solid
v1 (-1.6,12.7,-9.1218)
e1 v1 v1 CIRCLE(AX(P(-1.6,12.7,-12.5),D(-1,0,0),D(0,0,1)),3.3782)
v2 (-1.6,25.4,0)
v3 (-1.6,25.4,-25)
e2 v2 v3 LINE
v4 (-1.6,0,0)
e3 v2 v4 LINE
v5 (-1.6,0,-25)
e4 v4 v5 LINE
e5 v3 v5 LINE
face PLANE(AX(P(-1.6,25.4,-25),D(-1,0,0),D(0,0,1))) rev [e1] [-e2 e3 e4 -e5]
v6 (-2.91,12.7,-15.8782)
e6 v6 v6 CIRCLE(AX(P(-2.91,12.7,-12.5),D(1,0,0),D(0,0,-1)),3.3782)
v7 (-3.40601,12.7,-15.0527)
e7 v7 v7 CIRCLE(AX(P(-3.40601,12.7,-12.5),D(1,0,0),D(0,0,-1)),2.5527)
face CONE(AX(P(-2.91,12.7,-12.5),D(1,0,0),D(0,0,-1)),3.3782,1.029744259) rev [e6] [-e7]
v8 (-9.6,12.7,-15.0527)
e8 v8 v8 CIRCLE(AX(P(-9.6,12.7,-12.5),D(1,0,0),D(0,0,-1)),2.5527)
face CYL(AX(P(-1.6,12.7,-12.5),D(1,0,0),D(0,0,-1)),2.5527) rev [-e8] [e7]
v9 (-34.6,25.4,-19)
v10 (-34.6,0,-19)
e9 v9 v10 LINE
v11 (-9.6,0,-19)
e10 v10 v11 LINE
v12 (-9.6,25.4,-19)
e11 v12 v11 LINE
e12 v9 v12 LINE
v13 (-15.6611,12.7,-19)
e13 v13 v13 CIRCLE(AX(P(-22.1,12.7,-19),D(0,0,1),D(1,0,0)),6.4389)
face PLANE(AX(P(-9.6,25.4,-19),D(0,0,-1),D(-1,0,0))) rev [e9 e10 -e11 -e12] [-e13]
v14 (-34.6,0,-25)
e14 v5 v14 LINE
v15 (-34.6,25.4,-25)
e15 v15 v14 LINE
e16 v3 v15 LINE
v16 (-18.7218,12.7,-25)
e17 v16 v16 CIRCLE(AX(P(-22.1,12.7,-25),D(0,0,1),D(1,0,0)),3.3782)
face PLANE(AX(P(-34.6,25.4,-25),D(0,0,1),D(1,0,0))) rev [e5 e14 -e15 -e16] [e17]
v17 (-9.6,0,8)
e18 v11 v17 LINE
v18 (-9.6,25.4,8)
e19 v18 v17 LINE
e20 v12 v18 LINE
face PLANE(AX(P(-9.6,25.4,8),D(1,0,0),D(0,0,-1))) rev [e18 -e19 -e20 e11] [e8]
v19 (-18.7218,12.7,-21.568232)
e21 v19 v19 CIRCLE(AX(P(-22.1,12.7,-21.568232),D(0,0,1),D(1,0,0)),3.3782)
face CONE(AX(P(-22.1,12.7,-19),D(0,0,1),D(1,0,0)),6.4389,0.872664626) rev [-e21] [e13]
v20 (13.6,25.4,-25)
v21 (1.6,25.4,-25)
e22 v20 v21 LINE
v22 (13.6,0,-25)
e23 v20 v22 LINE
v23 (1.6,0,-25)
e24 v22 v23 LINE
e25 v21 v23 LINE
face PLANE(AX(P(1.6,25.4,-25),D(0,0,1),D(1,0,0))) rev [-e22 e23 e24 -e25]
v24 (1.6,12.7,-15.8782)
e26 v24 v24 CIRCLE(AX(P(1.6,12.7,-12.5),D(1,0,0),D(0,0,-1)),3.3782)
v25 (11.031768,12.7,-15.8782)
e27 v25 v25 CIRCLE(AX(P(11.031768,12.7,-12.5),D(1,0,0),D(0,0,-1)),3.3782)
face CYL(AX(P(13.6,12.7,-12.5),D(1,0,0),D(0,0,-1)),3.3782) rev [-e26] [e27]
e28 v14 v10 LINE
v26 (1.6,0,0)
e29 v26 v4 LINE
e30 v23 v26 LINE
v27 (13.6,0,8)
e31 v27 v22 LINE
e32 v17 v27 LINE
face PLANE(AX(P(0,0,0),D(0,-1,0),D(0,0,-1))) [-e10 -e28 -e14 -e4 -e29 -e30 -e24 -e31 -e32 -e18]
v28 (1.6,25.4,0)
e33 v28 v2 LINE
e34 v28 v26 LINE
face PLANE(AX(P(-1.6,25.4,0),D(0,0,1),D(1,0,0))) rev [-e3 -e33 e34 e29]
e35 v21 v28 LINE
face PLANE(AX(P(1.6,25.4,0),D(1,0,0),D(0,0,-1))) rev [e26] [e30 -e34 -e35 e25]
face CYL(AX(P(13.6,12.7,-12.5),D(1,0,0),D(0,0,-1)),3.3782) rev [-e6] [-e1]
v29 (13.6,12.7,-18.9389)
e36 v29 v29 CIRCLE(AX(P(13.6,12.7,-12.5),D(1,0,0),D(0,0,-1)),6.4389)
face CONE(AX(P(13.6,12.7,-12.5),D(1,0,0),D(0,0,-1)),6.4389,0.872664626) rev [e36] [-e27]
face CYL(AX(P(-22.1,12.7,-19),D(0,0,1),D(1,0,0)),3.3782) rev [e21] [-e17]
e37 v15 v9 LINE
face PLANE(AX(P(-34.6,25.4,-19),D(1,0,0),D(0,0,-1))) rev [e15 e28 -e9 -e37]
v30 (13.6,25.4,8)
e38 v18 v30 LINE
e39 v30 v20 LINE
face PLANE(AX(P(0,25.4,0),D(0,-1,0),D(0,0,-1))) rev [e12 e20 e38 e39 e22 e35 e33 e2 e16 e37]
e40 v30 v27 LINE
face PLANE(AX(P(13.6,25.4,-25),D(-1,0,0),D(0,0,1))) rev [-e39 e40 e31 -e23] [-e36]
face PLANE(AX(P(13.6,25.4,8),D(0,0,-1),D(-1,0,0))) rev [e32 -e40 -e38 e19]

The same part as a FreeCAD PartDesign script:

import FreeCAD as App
import Part
import Sketcher
Q = App.Units.Quantity


def add_polygon(sketch, points):
    """Adds a closed chain of lines whose ends are joined by coincident constraints."""
    first, n = sketch.GeometryCount, len(points)
    for a, b in zip(points, points[1:] + points[:1]):
        sketch.addGeometry(Part.LineSegment(App.Vector(*a, 0), App.Vector(*b, 0)), False)
    for i in range(n):
        sketch.addConstraint(Sketcher.Constraint("Coincident", first + i, 2, first + (i + 1) % n, 1))

doc = App.newDocument("Part")
params = doc.addObject("Spreadsheet::Sheet", "Params")
for row, (alias, value) in enumerate([
    ("sketch1_width", "33 mm"),
    ("sketch1_width2", "25 mm"),
    ("sketch1_width3", "12 mm"),
    ("sketch1_height", "6 mm"),
    ("sketch1_width4", "3.2 mm"),
    ("pad1_length", "25.4 mm"),
    ("sketch2_width", "16.51 mm"),
    ("groove_angle", "360 deg"),
    ("hole_diameter", "6.7564 mm"),
    ("hole_depth", "16.51 mm"),
    ("hole_csink_diameter", "12.8778 mm"),
    ("hole2_diameter", "6.7564 mm"),
    ("hole2_depth", "16.51 mm"),
    ("hole2_csink_diameter", "12.8778 mm"),
], start=1):
    params.set(f"A{row}", alias)
    params.set(f"B{row}", "=" + value)
    params.setAlias(f"B{row}", alias)

body = doc.addObject("PartDesign::Body", "Body")

# Sketch on XZ plane
sketch1 = body.newObject("Sketcher::SketchObject", "Sketch")
sketch1.AttachmentSupport = (doc.getObject("XZ_Plane"), [""])
sketch1.MapMode = "FlatFace"
add_polygon(sketch1, [(1.6, 0), (-1.6, 0), (-1.6, -25), (-34.6, -25), (-34.6, -19), (-9.6, -19), (-9.6, 8), (13.6, 8), (13.6, -25), (1.6, -25)])  # lines 0-9
sketch1.addConstraint([
    Sketcher.Constraint("Horizontal", 0),
    Sketcher.Constraint("Vertical", 1),
    Sketcher.Constraint("Horizontal", 2),
    Sketcher.Constraint("Vertical", 3),
    Sketcher.Constraint("Horizontal", 4),
    Sketcher.Constraint("Vertical", 5),
    Sketcher.Constraint("Horizontal", 6),
    Sketcher.Constraint("Vertical", 7),
    Sketcher.Constraint("Horizontal", 8),
    Sketcher.Constraint("Vertical", 9),
    Sketcher.Constraint("Symmetric", 0, 2, 9, 2, -1, 1),
    Sketcher.Constraint("Horizontal", 2, 2, 7, 2),
    Sketcher.Constraint("Equal", 4, 1),
    Sketcher.Constraint("Equal", 2, 7),
    Sketcher.Constraint("DistanceX", 2, 2, 2, 1, 33.0),
    Sketcher.Constraint("DistanceX", 4, 1, 4, 2, 25.0),
    Sketcher.Constraint("DistanceX", 8, 2, 8, 1, 12.0),
    Sketcher.Constraint("DistanceY", 3, 1, 3, 2, 6.0),
    Sketcher.Constraint("DistanceX", 0, 2, 0, 1, 3.2),
])
sketch1.setExpression("Constraints[24]", "Params.sketch1_width")
sketch1.setExpression("Constraints[25]", "Params.sketch1_width2")
sketch1.setExpression("Constraints[26]", "Params.sketch1_width3")
sketch1.setExpression("Constraints[27]", "Params.sketch1_height")
sketch1.setExpression("Constraints[28]", "Params.sketch1_width4")
pad1 = body.newObject("PartDesign::Pad", "Pad")
pad1.Profile = sketch1
pad1.setExpression("Length", "Params.pad1_length")
pad1.Reversed = True

# Sketch on XZ plane
sketch2 = body.newObject("Sketcher::SketchObject", "Sketch001")
sketch2.AttachmentSupport = (doc.getObject("XZ_Plane"), [""])
sketch2.MapMode = "FlatFace"
sketch2.AttachmentOffset = App.Placement(App.Vector(0, 0, -12.7), App.Rotation())
add_polygon(sketch2, [(-19.6, -12.5), (-1.6, -12.5), (-1.6, -15.1), (-18.1, -15.1)])  # lines 0-3
sketch2.addGeometry(Part.LineSegment(App.Vector(-1.6, -12.5, 0), App.Vector(-19.6, -12.5, 0)), True)  # axis
sketch2.addConstraint([
    Sketcher.Constraint("Horizontal", 0),
    Sketcher.Constraint("Vertical", 1),
    Sketcher.Constraint("Horizontal", 2),
    Sketcher.Constraint("Horizontal", 4),
    Sketcher.Constraint("Coincident", 4, 1, 0, 2),
    Sketcher.Constraint("Equal", 0, 4),
    Sketcher.Constraint("Angle", 3, Q("121 deg")),
    Sketcher.Constraint("DistanceX", 2, 2, 2, 1, 16.51),
    Sketcher.Constraint("DistanceX", 0, 2, -1, 1, 1.6),
    Sketcher.Constraint("DistanceY", 0, 2, -1, 1, 12.5),
    Sketcher.Constraint("DistanceY", 1, 2, 1, 1, 2.5527),
])
sketch2.setExpression("Constraints[11]", "Params.sketch2_width")
groove = body.newObject("PartDesign::Groove", "Groove")
groove.Profile = sketch2
groove.ReferenceAxis = (sketch2, ["Axis0"])
groove.setExpression("Angle", "Params.groove_angle")

# Sketch on YZ plane
sketch3 = body.newObject("Sketcher::SketchObject", "Sketch002")
sketch3.AttachmentSupport = (doc.getObject("YZ_Plane"), [""])
sketch3.MapMode = "FlatFace"
sketch3.AttachmentOffset = App.Placement(App.Vector(0, 0, 13.6), App.Rotation())
sketch3.addGeometry(Part.Circle(App.Vector(12.7, -12.5, 0), App.Vector(0, 0, 1), 3.4), False)
sketch3.addConstraint([
    Sketcher.Constraint("Diameter", 0, 6.7564),
    Sketcher.Constraint("DistanceX", -1, 1, 0, 3, 12.7),
    Sketcher.Constraint("DistanceY", 0, 3, -1, 1, 12.5),
])
doc.recompute()
hole = body.newObject("PartDesign::Hole", "Hole")
hole.Profile = sketch3
hole.ThreadType = "None"
hole.setExpression("Diameter", "Params.hole_diameter")
hole.DepthType = "Dimension"
hole.setExpression("Depth", "Params.hole_depth")
hole.DrillPoint = "Angled"
hole.DrillPointAngle = 118
hole.HoleCutType = "Countersink"
hole.setExpression("HoleCutDiameter", "Params.hole_csink_diameter")
hole.HoleCutCountersinkAngle = 100

# Sketch on XY plane
sketch4 = body.newObject("Sketcher::SketchObject", "Sketch003")
sketch4.AttachmentSupport = (doc.getObject("XY_Plane"), [""])
sketch4.MapMode = "FlatFace"
sketch4.AttachmentOffset = App.Placement(App.Vector(0, 0, -19), App.Rotation())
sketch4.addGeometry(Part.Circle(App.Vector(-22.1, 12.7, 0), App.Vector(0, 0, 1), 3.4), False)
sketch4.addConstraint([
    Sketcher.Constraint("Diameter", 0, 6.7564),
    Sketcher.Constraint("DistanceX", 0, 3, -1, 1, 22.1),
    Sketcher.Constraint("DistanceY", -1, 1, 0, 3, 12.7),
])
doc.recompute()
hole2 = body.newObject("PartDesign::Hole", "Hole001")
hole2.Profile = sketch4
hole2.ThreadType = "None"
hole2.setExpression("Diameter", "Params.hole2_diameter")
hole2.DepthType = "Dimension"
hole2.setExpression("Depth", "Params.hole2_depth")
hole2.DrillPoint = "Angled"
hole2.DrillPointAngle = 118
hole2.HoleCutType = "Countersink"
hole2.setExpression("HoleCutDiameter", "Params.hole2_csink_diameter")
hole2.HoleCutCountersinkAngle = 100

doc.recompute()
